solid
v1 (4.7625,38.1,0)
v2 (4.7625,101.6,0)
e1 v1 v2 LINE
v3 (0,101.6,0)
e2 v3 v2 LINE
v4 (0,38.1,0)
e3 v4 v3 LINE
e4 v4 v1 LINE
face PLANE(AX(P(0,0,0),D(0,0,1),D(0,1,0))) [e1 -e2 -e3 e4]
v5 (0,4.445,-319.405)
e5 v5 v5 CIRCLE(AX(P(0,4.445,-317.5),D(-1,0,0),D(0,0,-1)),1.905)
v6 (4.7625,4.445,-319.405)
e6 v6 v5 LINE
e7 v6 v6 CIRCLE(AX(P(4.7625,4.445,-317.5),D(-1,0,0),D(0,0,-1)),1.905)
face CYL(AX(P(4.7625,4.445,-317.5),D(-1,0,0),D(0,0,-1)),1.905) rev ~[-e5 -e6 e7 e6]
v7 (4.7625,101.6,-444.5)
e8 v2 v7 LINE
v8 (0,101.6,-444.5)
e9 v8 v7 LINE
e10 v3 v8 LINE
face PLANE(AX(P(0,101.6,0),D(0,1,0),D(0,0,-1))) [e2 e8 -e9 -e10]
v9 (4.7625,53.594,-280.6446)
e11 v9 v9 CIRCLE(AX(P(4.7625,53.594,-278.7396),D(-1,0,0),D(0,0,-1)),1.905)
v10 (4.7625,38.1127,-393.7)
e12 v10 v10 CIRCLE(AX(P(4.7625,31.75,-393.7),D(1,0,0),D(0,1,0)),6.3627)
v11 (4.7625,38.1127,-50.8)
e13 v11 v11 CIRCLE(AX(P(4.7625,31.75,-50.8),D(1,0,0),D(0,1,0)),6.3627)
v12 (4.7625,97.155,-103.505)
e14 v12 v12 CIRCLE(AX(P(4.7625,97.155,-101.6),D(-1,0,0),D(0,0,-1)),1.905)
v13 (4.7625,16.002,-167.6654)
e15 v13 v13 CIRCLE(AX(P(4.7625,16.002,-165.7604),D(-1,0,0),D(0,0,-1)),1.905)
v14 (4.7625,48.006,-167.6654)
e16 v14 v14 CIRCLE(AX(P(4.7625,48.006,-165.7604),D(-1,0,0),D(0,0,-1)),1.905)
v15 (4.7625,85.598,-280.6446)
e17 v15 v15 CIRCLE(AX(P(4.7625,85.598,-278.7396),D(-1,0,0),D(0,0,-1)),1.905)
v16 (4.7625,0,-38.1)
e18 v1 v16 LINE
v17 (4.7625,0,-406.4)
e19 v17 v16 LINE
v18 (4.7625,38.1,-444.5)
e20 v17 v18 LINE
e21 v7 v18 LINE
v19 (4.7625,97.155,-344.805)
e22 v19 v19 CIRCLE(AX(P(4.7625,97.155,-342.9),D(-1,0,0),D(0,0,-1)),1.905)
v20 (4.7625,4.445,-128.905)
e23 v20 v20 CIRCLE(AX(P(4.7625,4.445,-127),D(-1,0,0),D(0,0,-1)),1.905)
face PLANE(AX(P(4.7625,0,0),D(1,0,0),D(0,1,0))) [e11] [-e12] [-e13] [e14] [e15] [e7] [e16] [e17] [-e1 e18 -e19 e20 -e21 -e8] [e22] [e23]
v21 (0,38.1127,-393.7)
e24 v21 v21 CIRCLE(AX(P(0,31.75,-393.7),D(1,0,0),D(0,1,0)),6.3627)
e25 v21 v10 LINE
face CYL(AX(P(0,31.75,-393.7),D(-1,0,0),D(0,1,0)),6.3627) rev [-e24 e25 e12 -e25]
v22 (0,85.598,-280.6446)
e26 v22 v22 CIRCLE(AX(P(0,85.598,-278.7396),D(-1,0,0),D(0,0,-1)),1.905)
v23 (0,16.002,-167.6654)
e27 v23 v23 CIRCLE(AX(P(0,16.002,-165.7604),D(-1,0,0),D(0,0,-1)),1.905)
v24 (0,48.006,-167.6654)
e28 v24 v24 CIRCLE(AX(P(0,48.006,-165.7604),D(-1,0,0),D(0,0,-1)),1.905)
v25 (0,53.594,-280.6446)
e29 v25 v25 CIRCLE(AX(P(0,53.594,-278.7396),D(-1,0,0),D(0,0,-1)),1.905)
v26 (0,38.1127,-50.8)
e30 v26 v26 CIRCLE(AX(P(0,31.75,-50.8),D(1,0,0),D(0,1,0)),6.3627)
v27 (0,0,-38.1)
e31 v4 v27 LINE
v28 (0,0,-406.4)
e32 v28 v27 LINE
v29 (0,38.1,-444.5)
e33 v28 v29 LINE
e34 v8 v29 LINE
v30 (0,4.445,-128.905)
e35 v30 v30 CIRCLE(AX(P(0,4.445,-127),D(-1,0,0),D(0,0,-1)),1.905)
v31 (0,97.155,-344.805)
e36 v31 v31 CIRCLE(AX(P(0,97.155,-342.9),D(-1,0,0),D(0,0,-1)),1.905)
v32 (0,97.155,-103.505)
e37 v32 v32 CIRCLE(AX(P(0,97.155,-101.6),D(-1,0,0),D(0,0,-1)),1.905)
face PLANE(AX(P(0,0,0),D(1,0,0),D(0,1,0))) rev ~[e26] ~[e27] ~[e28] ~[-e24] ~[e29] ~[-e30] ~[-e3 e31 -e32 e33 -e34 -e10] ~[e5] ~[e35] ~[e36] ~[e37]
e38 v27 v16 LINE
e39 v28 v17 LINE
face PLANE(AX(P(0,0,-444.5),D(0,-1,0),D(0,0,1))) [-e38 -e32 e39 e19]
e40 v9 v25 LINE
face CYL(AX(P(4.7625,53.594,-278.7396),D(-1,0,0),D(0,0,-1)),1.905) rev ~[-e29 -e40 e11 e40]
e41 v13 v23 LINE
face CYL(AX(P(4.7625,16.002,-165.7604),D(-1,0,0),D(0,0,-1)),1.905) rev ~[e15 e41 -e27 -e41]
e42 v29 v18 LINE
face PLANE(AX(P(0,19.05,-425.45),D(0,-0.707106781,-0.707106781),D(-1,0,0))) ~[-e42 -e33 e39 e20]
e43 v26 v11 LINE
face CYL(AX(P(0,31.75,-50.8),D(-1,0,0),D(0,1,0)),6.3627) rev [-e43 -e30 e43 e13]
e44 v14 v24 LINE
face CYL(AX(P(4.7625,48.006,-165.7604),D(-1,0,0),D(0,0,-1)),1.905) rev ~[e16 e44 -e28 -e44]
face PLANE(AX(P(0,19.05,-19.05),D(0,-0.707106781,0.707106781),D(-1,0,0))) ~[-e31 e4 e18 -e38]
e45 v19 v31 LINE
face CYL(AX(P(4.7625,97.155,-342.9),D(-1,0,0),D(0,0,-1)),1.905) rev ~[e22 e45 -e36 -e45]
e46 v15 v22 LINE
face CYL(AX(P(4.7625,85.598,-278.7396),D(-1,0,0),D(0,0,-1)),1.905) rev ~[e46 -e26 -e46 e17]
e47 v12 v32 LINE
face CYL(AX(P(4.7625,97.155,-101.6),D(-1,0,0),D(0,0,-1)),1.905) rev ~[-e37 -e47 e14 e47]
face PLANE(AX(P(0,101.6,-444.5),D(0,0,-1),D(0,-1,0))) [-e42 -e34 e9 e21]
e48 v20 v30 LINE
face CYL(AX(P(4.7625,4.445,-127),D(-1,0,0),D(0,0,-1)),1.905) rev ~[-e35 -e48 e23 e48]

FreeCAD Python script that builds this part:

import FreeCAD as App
import Part
import Sketcher

V = App.Vector
Q = App.Units.Quantity


def edges_at(feature, points):
    """Names of the edges that pass closest to the given points."""
    edges = feature.Shape.Edges
    near = lambda p: min(range(len(edges)), key=lambda i: edges[i].distToShape(Part.Vertex(*p))[0])
    return sorted({f"Edge{near(p) + 1}" for p in points})

doc = App.newDocument("Part")
params = doc.addObject("Spreadsheet::Sheet", "Params")
for row, (alias, value) in enumerate([
    ("sketch1_width", "4 in"),
    ("sketch1_diameter", "0.501 in"),
    ("sketch1_height", "17.5 in"),
    ("pad1_length", "0.1875 in"),
    ("chamfer_size", "1.5 in"),
    ("chamfer2_size", "1.5 in"),
    ("sketch2_diameter", "0.15 in"),
    ("hole_diameter", "0.15 in"),
    ("sketch3_diameter", "0.15 in"),
    ("hole2_diameter", "0.15 in"),
    ("hole2_depth", "1 in"),
], start=1):
    params.set(f"A{row}", alias)
    params.set(f"B{row}", "=" + value)
    params.setAlias(f"B{row}", alias)

body = doc.addObject("PartDesign::Body", "Body")

sketch1 = body.newObject("Sketcher::SketchObject", "Sketch")
sketch1.AttachmentSupport = (doc.getObject("YZ_Plane"), [""])
sketch1.MapMode = "FlatFace"
sketch1.addGeometry([
    Part.LineSegment(V(101.6, 0, 0), V(0, 0, 0)),
    Part.LineSegment(V(0, 0, 0), V(0, -444.5, 0)),
    Part.LineSegment(V(0, -444.5, 0), V(101.6, -444.5, 0)),
    Part.LineSegment(V(101.6, -444.5, 0), V(101.6, 0, 0)),
    Part.Circle(V(31.75, -393.7, 0), V(0, 0, 1), 6.3627),
    Part.Circle(V(31.75, -50.8, 0), V(0, 0, 1), 6.3627),
], False)
sketch1.addConstraint([
    Sketcher.Constraint("Coincident", 0, 2, 1, 1),
    Sketcher.Constraint("Coincident", 1, 2, 2, 1),
    Sketcher.Constraint("Coincident", 2, 2, 3, 1),
    Sketcher.Constraint("Coincident", 3, 2, 0, 1),
    Sketcher.Constraint("Horizontal", 0),
    Sketcher.Constraint("Vertical", 1),
    Sketcher.Constraint("Horizontal", 2),
    Sketcher.Constraint("Vertical", 3),
    Sketcher.Constraint("Coincident", 0, 2, -1, 1),
    Sketcher.Constraint("Equal", 4, 5),
    Sketcher.Constraint("Vertical", 4, 3, 5, 3),
    Sketcher.Constraint("DistanceX", 0, 2, 0, 1, Q("4 in")),
    Sketcher.Constraint("Diameter", 4, Q("0.501 in")),
    Sketcher.Constraint("DistanceY", 1, 2, 1, 1, Q("17.5 in")),
    Sketcher.Constraint("DistanceY", 5, 3, -1, 1, Q("2 in")),
    Sketcher.Constraint("DistanceY", 1, 2, 4, 3, Q("2 in")),
    Sketcher.Constraint("DistanceX", -1, 1, 4, 3, Q("1.25 in")),
])
sketch1.setExpression("Constraints[11]", "Params.sketch1_width")
sketch1.setExpression("Constraints[12]", "Params.sketch1_diameter")
sketch1.setExpression("Constraints[13]", "Params.sketch1_height")
pad1 = body.newObject("PartDesign::Pad", "Pad")
pad1.Profile = sketch1
pad1.setExpression("Length", "Params.pad1_length")
doc.recompute()

chamfer = body.newObject("PartDesign::Chamfer", "Chamfer")
chamfer.Base = (pad1, edges_at(pad1, [(2.381, 0, 0)]))
chamfer.setExpression("Size", "Params.chamfer_size")
doc.recompute()

chamfer2 = body.newObject("PartDesign::Chamfer", "Chamfer001")
chamfer2.Base = (chamfer, edges_at(chamfer, [(2.381, 0, -444.5)]))
chamfer2.setExpression("Size", "Params.chamfer2_size")

sketch2 = body.newObject("Sketcher::SketchObject", "Sketch001")
sketch2.AttachmentSupport = (doc.getObject("YZ_Plane"), [""])
sketch2.MapMode = "FlatFace"
sketch2.AttachmentOffset = App.Placement(V(0, 0, 0.1875 * 25.4), App.Rotation())
sketch2.addGeometry([
    Part.Circle(V(48.006, -165.7604, 0), V(0, 0, 1), 1.905),
    Part.Circle(V(16.002, -165.7604, 0), V(0, 0, 1), 1.905),
    Part.Circle(V(85.598, -278.7396, 0), V(0, 0, 1), 1.905),
    Part.Circle(V(53.594, -278.7396, 0), V(0, 0, 1), 1.905),
], False)
sketch2.addConstraint([
    Sketcher.Constraint("Equal", 0, 1),
    Sketcher.Constraint("Equal", 1, 2),
    Sketcher.Constraint("Equal", 2, 3),
    Sketcher.Constraint("Horizontal", 0, 3, 1, 3),
    Sketcher.Constraint("Horizontal", 2, 3, 3, 3),
    Sketcher.Constraint("Diameter", 0, Q("0.15 in")),
    Sketcher.Constraint("DistanceX", -1, 1, 0, 3, Q("1.89 in")),
    Sketcher.Constraint("DistanceX", -1, 1, 1, 3, Q("0.63 in")),
    Sketcher.Constraint("DistanceX", -1, 1, 2, 3, Q("3.37 in")),
    Sketcher.Constraint("DistanceX", -1, 1, 3, 3, Q("2.11 in")),
    Sketcher.Constraint("DistanceY", 0, 3, -1, 1, Q("6.526 in")),
    Sketcher.Constraint("DistanceY", 2, 3, -1, 1, Q("10.974 in")),
])
sketch2.setExpression("Constraints[5]", "Params.sketch2_diameter")
doc.recompute()
hole = body.newObject("PartDesign::Hole", "Hole")
hole.Profile = sketch2
hole.ThreadType = "None"
hole.setExpression("Diameter", "Params.hole_diameter")
hole.DepthType = "ThroughAll"

sketch3 = body.newObject("Sketcher::SketchObject", "Sketch002")
sketch3.AttachmentSupport = (doc.getObject("YZ_Plane"), [""])
sketch3.MapMode = "FlatFace"
sketch3.AttachmentOffset = App.Placement(V(0, 0, 0.1875 * 25.4), App.Rotation())
sketch3.addGeometry([
    Part.Circle(V(97.155, -101.6, 0), V(0, 0, 1), 1.905),
    Part.Circle(V(97.155, -342.9, 0), V(0, 0, 1), 1.905),
    Part.Circle(V(4.445, -127, 0), V(0, 0, 1), 1.905),
    Part.Circle(V(4.445, -317.5, 0), V(0, 0, 1), 1.905),
], False)
sketch3.addConstraint([
    Sketcher.Constraint("Equal", 0, 1),
    Sketcher.Constraint("Equal", 1, 2),
    Sketcher.Constraint("Equal", 2, 3),
    Sketcher.Constraint("Vertical", 0, 3, 1, 3),
    Sketcher.Constraint("Vertical", 2, 3, 3, 3),
    Sketcher.Constraint("Diameter", 0, Q("0.15 in")),
    Sketcher.Constraint("DistanceY", 0, 3, -1, 1, Q("4 in")),
    Sketcher.Constraint("DistanceY", 2, 3, -1, 1, Q("5 in")),
    Sketcher.Constraint("DistanceY", 1, 3, 3, 3, Q("1 in")),
    Sketcher.Constraint("DistanceY", 1, 3, -1, 1, Q("13.5 in")),
    Sketcher.Constraint("DistanceX", 2, 3, 0, 3, Q("3.65 in")),
    Sketcher.Constraint("DistanceX", -1, 1, 0, 3, Q("3.825 in")),
])
sketch3.setExpression("Constraints[5]", "Params.sketch3_diameter")
doc.recompute()
hole2 = body.newObject("PartDesign::Hole", "Hole001")
hole2.Profile = sketch3
hole2.ThreadType = "None"
hole2.setExpression("Diameter", "Params.hole2_diameter")
hole2.DepthType = "Dimension"
hole2.setExpression("Depth", "Params.hole2_depth")
hole2.DrillPoint = "Angled"
hole2.DrillPointAngle = 118

doc.recompute()
